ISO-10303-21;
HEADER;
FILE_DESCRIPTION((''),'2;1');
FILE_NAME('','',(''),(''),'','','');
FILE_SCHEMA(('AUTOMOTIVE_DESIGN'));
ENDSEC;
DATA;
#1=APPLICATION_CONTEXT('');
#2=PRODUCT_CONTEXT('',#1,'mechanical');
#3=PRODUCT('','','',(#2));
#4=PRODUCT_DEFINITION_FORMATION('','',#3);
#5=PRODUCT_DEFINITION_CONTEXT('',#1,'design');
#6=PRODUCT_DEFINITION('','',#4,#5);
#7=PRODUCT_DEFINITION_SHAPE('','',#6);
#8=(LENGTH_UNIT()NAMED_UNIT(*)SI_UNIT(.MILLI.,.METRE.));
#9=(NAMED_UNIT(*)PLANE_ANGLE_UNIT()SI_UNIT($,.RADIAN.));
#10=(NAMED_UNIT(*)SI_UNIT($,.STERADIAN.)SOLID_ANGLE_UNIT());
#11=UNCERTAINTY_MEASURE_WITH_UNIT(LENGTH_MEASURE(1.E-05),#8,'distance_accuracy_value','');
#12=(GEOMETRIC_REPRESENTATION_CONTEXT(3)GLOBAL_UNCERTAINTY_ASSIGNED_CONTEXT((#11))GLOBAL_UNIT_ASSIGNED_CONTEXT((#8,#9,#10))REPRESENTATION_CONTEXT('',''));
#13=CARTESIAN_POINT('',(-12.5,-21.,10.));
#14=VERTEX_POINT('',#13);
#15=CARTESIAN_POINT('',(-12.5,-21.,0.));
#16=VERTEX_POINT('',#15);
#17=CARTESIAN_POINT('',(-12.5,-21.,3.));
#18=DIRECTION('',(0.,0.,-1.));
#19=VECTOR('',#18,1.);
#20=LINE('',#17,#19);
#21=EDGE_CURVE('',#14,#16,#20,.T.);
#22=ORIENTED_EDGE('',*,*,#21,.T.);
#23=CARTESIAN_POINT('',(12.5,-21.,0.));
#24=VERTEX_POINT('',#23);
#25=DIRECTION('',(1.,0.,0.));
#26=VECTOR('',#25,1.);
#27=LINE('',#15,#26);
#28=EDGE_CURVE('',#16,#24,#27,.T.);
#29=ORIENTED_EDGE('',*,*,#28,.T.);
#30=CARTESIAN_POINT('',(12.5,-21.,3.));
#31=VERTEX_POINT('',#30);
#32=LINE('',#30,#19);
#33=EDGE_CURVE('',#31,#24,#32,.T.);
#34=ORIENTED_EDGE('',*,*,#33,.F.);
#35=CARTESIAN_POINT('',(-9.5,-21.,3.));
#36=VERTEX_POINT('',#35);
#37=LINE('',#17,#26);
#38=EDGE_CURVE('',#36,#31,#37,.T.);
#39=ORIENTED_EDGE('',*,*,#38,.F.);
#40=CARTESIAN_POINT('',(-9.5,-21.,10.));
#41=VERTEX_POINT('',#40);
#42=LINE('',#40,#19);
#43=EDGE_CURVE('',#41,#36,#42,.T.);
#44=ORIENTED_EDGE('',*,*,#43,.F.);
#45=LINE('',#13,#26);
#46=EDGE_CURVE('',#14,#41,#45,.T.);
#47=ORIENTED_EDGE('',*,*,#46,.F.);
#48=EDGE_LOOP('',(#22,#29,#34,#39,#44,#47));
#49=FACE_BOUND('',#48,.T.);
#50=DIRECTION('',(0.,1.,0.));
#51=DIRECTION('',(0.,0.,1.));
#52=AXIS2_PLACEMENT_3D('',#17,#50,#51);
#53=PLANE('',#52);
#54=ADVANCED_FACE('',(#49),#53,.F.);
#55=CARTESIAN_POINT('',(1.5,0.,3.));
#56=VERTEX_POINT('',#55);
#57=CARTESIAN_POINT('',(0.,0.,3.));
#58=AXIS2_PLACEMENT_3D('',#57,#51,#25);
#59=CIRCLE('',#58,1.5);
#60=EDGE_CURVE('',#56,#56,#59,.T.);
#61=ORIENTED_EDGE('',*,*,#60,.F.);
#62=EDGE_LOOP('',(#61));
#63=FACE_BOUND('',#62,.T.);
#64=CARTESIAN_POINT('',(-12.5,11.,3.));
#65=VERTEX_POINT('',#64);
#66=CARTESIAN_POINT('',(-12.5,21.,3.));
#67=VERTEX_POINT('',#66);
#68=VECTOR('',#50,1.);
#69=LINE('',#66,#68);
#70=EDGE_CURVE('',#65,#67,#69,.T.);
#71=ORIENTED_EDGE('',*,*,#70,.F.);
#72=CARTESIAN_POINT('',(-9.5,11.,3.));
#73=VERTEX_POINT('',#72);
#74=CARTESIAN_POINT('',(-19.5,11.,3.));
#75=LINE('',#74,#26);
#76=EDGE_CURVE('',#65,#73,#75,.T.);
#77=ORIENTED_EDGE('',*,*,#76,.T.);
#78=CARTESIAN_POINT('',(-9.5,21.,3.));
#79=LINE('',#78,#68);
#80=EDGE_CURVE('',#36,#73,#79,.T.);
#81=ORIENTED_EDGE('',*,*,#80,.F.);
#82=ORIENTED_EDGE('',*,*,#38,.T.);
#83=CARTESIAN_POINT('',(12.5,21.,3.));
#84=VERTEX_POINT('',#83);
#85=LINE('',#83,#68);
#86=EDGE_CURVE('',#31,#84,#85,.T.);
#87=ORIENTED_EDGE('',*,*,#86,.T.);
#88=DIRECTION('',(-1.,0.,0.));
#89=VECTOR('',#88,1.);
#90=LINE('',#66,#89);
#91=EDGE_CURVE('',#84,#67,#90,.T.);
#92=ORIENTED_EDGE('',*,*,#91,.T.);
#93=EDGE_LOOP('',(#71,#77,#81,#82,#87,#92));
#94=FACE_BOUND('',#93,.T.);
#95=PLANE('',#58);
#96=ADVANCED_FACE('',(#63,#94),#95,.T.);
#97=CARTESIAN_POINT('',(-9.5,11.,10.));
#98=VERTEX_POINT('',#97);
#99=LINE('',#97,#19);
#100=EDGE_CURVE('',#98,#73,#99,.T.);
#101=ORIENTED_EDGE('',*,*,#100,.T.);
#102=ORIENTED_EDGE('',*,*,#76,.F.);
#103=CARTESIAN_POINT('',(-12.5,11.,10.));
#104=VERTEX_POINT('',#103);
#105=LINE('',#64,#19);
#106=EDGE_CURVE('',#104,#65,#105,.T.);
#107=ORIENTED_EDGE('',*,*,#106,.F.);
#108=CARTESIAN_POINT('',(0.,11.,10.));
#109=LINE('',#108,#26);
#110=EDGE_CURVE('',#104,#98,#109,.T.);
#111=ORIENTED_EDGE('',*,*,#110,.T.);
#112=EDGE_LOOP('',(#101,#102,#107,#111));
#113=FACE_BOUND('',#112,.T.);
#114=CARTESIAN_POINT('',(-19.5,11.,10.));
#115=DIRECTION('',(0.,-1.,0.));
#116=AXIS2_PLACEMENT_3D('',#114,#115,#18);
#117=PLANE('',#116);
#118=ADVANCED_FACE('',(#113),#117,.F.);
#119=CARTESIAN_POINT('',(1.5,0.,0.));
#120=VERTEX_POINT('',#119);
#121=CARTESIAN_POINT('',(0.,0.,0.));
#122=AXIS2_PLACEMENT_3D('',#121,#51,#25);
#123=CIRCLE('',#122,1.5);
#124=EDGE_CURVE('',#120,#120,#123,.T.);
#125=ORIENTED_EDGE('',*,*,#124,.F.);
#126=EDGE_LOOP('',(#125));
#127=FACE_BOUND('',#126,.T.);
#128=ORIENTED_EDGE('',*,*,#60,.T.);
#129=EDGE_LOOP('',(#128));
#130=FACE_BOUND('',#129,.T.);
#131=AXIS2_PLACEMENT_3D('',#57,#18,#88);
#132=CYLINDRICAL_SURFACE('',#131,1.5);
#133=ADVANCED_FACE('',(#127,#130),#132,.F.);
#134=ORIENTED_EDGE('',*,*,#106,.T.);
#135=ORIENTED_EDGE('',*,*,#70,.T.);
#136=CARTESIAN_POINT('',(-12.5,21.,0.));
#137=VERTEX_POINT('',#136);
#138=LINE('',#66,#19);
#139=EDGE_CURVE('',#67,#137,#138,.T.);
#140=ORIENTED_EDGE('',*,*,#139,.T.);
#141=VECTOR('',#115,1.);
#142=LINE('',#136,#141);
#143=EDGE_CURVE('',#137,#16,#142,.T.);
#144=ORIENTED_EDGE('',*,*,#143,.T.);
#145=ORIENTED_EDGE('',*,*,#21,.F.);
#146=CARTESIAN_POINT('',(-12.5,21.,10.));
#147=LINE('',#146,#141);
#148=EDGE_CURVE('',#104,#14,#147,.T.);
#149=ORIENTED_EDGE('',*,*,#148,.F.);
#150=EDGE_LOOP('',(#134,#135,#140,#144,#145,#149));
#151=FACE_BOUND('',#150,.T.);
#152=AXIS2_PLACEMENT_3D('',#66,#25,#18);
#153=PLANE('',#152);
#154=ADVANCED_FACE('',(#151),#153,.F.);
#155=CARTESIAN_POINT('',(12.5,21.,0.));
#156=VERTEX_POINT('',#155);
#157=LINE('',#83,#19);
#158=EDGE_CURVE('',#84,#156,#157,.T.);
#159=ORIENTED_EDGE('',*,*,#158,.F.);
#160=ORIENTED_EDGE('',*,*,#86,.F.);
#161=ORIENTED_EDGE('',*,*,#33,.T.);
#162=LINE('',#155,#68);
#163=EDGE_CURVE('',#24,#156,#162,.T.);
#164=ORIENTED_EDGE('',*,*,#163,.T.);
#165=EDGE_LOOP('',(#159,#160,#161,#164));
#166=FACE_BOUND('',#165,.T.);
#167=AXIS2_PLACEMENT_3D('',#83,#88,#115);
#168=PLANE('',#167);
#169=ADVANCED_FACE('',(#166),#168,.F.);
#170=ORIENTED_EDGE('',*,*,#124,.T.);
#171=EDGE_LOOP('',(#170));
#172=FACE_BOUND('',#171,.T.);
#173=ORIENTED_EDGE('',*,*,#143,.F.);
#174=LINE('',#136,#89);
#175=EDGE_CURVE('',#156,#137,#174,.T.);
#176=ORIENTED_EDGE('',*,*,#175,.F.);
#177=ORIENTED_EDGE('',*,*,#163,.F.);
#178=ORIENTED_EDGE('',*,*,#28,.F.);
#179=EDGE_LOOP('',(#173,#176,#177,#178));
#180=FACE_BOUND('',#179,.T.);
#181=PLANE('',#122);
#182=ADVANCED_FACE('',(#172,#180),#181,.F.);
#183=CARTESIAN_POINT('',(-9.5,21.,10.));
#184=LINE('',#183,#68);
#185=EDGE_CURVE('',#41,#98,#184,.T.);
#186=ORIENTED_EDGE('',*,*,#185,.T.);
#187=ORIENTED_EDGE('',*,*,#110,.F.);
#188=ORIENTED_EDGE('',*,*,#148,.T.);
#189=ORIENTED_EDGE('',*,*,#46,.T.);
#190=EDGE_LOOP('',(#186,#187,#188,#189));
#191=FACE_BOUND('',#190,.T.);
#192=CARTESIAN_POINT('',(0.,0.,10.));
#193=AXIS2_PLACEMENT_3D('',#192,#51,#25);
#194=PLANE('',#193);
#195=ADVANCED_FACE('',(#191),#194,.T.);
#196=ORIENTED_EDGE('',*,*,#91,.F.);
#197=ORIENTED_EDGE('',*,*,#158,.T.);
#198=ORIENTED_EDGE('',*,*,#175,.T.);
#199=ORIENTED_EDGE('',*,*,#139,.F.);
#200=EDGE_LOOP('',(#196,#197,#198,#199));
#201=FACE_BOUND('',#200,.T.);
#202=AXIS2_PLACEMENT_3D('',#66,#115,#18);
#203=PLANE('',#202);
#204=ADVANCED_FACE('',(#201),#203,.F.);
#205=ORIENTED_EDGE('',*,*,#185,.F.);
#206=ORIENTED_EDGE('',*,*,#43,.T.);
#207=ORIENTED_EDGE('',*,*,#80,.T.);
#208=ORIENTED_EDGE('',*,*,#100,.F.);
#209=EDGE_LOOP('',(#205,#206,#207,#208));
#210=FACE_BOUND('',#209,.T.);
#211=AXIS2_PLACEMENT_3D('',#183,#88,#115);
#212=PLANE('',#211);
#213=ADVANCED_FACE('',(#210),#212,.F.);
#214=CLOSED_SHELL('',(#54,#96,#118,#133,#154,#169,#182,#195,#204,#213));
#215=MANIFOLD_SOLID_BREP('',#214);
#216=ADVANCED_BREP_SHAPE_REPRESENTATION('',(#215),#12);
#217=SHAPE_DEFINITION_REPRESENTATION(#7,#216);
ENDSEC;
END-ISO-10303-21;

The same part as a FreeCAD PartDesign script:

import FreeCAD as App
import Part
import Sketcher
Q = App.Units.Quantity


def add_polygon(sketch, points):
    """Adds a closed chain of lines whose ends are joined by coincident constraints."""
    first, n = sketch.GeometryCount, len(points)
    for a, b in zip(points, points[1:] + points[:1]):
        sketch.addGeometry(Part.LineSegment(App.Vector(*a, 0), App.Vector(*b, 0)), False)
    for i in range(n):
        sketch.addConstraint(Sketcher.Constraint("Coincident", first + i, 2, first + (i + 1) % n, 1))

doc = App.newDocument("Part")
params = doc.addObject("Spreadsheet::Sheet", "Params")
for row, (alias, value) in enumerate([
    ("sketch1_diameter", "3 mm"),
    ("sketch1_width", "25 mm"),
    ("sketch1_height", "42 mm"),
    ("pad1_length", "3 mm"),
    ("sketch2_width", "3 mm"),
    ("sketch2_height", "42 mm"),
    ("pad2_length", "7 mm"),
    ("sketch3_width", "10 mm"),
    ("sketch3_height", "7 mm"),
    ("pocket1_length", "10 mm"),
], start=1):
    params.set(f"A{row}", alias)
    params.set(f"B{row}", "=" + value)
    params.setAlias(f"B{row}", alias)

body = doc.addObject("PartDesign::Body", "Body")

sketch1 = body.newObject("Sketcher::SketchObject", "Sketch")
sketch1.AttachmentSupport = (doc.getObject("XY_Plane"), [""])
sketch1.MapMode = "FlatFace"
add_polygon(sketch1, [(-12.5, 21), (-12.5, -21), (12.5, -21), (12.5, 21)])
sketch1.addGeometry(Part.Circle(App.Vector(0, 0, 0), App.Vector(0, 0, 1), 1.5), False)
sketch1.addConstraint([
    Sketcher.Constraint("Vertical", 0),
    Sketcher.Constraint("Horizontal", 1),
    Sketcher.Constraint("Vertical", 2),
    Sketcher.Constraint("Horizontal", 3),
    Sketcher.Constraint("Coincident", 4, 3, -1, 1),
    Sketcher.Constraint("Symmetric", 0, 2, 2, 2, -1, 1),
    Sketcher.Constraint("Diameter", 4, Q("3 mm")),
    Sketcher.Constraint("DistanceX", 1, 1, 1, 2, Q("25 mm")),
    Sketcher.Constraint("DistanceY", 0, 2, 0, 1, Q("42 mm")),
])
sketch1.setExpression("Constraints[10]", "Params.sketch1_diameter")
sketch1.setExpression("Constraints[11]", "Params.sketch1_width")
sketch1.setExpression("Constraints[12]", "Params.sketch1_height")
pad1 = body.newObject("PartDesign::Pad", "Pad")
pad1.Profile = sketch1
pad1.setExpression("Length", "Params.pad1_length")

sketch2 = body.newObject("Sketcher::SketchObject", "Sketch001")
sketch2.AttachmentSupport = (doc.getObject("XY_Plane"), [""])
sketch2.MapMode = "FlatFace"
sketch2.AttachmentOffset = App.Placement(App.Vector(0, 0, 3), App.Rotation())
add_polygon(sketch2, [(-12.5, 21), (-12.5, -21), (-9.5, -21), (-9.5, 21)])
sketch2.addConstraint([
    Sketcher.Constraint("Vertical", 0),
    Sketcher.Constraint("Horizontal", 1),
    Sketcher.Constraint("Vertical", 2),
    Sketcher.Constraint("Horizontal", 3),
    Sketcher.Constraint("DistanceX", 1, 1, 1, 2, Q("3 mm")),
    Sketcher.Constraint("DistanceY", 0, 2, 0, 1, Q("42 mm")),
    Sketcher.Constraint("DistanceY", 0, 2, -1, 1, Q("21 mm")),
    Sketcher.Constraint("DistanceX", 0, 2, -1, 1, Q("12.5 mm")),
])
sketch2.setExpression("Constraints[8]", "Params.sketch2_width")
sketch2.setExpression("Constraints[9]", "Params.sketch2_height")
pad2 = body.newObject("PartDesign::Pad", "Pad001")
pad2.Profile = sketch2
pad2.setExpression("Length", "Params.pad2_length")

sketch3 = body.newObject("Sketcher::SketchObject", "Sketch002")
sketch3.AttachmentSupport = (doc.getObject("YZ_Plane"), [""])
sketch3.MapMode = "FlatFace"
sketch3.AttachmentOffset = App.Placement(App.Vector(0, 0, -9.5), App.Rotation())
add_polygon(sketch3, [(21, 10), (11, 10), (11, 3), (21, 3)])
sketch3.addConstraint([
    Sketcher.Constraint("Horizontal", 0),
    Sketcher.Constraint("Vertical", 1),
    Sketcher.Constraint("Horizontal", 2),
    Sketcher.Constraint("Vertical", 3),
    Sketcher.Constraint("DistanceX", 0, 2, 0, 1, Q("10 mm")),
    Sketcher.Constraint("DistanceY", 1, 2, 1, 1, Q("7 mm")),
    Sketcher.Constraint("DistanceX", -1, 1, 0, 2, Q("11 mm")),
    Sketcher.Constraint("DistanceY", -1, 1, 0, 2, Q("10 mm")),
])
sketch3.setExpression("Constraints[8]", "Params.sketch3_width")
sketch3.setExpression("Constraints[9]", "Params.sketch3_height")
pocket1 = body.newObject("PartDesign::Pocket", "Pocket")
pocket1.Profile = sketch3
pocket1.setExpression("Length", "Params.pocket1_length")

doc.recompute()
